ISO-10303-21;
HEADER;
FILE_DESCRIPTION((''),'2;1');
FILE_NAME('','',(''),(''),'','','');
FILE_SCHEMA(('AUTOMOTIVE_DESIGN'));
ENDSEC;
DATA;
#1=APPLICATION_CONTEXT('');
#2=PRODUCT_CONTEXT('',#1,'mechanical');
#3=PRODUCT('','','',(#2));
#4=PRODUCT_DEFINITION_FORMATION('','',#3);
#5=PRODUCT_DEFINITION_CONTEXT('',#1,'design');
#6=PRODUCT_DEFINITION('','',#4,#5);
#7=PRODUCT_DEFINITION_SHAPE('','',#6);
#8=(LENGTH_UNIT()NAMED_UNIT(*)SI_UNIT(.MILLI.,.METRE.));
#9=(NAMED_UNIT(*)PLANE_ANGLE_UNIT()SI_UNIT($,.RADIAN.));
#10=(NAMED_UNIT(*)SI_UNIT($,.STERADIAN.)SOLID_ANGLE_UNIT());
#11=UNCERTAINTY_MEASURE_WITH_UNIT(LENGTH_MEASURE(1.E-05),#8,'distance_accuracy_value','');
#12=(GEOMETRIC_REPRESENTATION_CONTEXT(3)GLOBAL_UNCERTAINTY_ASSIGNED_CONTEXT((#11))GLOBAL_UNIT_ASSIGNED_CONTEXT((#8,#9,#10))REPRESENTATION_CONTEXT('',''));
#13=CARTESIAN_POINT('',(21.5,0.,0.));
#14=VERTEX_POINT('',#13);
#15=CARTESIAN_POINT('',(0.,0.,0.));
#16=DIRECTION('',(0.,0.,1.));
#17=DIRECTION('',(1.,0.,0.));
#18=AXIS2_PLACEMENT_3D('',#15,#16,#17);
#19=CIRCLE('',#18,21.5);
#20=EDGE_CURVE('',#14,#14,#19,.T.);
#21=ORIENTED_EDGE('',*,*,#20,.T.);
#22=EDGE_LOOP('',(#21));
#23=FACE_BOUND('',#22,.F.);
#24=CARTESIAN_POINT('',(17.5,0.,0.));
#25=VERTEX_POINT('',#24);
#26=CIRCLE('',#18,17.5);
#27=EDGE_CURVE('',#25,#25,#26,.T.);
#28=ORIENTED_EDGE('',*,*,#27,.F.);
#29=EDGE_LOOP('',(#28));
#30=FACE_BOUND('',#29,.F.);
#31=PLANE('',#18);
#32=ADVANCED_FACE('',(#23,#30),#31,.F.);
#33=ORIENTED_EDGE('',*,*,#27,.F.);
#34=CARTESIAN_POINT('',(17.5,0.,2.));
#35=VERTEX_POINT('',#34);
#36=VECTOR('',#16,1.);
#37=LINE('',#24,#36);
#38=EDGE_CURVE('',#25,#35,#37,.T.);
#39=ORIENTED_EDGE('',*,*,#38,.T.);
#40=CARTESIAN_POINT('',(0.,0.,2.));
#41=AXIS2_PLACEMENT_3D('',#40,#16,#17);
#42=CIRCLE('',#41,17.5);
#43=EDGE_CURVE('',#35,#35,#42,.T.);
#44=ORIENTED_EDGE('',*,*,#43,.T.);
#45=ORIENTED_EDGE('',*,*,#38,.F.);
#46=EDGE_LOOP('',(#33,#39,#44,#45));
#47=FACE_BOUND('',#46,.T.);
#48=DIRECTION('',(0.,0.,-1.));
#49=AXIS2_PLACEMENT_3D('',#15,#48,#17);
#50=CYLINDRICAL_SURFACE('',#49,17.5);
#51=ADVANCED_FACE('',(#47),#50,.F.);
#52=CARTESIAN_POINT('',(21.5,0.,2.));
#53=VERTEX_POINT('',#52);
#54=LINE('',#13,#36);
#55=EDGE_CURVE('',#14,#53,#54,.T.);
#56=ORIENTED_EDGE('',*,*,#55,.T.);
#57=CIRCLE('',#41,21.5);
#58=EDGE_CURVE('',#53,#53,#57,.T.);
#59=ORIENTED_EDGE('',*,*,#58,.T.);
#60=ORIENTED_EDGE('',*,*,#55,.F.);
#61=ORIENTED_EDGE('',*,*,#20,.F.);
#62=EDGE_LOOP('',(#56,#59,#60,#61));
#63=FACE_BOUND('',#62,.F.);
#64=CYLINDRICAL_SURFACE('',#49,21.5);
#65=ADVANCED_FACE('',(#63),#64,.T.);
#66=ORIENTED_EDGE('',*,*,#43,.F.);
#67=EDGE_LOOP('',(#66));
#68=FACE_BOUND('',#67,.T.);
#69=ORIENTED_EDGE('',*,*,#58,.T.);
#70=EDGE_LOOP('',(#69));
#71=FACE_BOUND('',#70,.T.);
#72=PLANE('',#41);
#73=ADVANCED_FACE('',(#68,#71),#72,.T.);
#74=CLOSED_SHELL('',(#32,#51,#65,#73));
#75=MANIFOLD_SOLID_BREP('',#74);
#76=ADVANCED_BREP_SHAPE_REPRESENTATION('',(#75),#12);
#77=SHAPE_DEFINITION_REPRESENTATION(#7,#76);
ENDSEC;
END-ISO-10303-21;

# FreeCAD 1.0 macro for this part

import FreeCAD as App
import Part
import Sketcher
from FreeCAD import Vector

doc = App.newDocument("Part")
body = doc.addObject("PartDesign::Body", "Body")

# Sketch on XY plane
sketch1 = body.newObject("Sketcher::SketchObject", "Sketch")
sketch1.AttachmentSupport = (doc.getObject("XY_Plane"), [""])
sketch1.MapMode = "FlatFace"
sketch1.addGeometry(Part.Circle(Vector(0, 0, 0), Vector(0, 0, 1), 22), False)
sketch1.addGeometry(Part.Circle(Vector(0, 0, 0), Vector(0, 0, 1), 18), False)
sketch1.addConstraint(Sketcher.Constraint("Coincident", 0, 3, -1, 1))
sketch1.addConstraint(Sketcher.Constraint("Coincident", 1, 3, -1, 1))
sketch1.addConstraint(Sketcher.Constraint("Diameter", 0, 43.0))
sketch1.addConstraint(Sketcher.Constraint("Diameter", 1, 35.0))
pad1 = body.newObject("PartDesign::Pad", "Pad")
pad1.Profile = sketch1
pad1.Length = 2

doc.recompute()
